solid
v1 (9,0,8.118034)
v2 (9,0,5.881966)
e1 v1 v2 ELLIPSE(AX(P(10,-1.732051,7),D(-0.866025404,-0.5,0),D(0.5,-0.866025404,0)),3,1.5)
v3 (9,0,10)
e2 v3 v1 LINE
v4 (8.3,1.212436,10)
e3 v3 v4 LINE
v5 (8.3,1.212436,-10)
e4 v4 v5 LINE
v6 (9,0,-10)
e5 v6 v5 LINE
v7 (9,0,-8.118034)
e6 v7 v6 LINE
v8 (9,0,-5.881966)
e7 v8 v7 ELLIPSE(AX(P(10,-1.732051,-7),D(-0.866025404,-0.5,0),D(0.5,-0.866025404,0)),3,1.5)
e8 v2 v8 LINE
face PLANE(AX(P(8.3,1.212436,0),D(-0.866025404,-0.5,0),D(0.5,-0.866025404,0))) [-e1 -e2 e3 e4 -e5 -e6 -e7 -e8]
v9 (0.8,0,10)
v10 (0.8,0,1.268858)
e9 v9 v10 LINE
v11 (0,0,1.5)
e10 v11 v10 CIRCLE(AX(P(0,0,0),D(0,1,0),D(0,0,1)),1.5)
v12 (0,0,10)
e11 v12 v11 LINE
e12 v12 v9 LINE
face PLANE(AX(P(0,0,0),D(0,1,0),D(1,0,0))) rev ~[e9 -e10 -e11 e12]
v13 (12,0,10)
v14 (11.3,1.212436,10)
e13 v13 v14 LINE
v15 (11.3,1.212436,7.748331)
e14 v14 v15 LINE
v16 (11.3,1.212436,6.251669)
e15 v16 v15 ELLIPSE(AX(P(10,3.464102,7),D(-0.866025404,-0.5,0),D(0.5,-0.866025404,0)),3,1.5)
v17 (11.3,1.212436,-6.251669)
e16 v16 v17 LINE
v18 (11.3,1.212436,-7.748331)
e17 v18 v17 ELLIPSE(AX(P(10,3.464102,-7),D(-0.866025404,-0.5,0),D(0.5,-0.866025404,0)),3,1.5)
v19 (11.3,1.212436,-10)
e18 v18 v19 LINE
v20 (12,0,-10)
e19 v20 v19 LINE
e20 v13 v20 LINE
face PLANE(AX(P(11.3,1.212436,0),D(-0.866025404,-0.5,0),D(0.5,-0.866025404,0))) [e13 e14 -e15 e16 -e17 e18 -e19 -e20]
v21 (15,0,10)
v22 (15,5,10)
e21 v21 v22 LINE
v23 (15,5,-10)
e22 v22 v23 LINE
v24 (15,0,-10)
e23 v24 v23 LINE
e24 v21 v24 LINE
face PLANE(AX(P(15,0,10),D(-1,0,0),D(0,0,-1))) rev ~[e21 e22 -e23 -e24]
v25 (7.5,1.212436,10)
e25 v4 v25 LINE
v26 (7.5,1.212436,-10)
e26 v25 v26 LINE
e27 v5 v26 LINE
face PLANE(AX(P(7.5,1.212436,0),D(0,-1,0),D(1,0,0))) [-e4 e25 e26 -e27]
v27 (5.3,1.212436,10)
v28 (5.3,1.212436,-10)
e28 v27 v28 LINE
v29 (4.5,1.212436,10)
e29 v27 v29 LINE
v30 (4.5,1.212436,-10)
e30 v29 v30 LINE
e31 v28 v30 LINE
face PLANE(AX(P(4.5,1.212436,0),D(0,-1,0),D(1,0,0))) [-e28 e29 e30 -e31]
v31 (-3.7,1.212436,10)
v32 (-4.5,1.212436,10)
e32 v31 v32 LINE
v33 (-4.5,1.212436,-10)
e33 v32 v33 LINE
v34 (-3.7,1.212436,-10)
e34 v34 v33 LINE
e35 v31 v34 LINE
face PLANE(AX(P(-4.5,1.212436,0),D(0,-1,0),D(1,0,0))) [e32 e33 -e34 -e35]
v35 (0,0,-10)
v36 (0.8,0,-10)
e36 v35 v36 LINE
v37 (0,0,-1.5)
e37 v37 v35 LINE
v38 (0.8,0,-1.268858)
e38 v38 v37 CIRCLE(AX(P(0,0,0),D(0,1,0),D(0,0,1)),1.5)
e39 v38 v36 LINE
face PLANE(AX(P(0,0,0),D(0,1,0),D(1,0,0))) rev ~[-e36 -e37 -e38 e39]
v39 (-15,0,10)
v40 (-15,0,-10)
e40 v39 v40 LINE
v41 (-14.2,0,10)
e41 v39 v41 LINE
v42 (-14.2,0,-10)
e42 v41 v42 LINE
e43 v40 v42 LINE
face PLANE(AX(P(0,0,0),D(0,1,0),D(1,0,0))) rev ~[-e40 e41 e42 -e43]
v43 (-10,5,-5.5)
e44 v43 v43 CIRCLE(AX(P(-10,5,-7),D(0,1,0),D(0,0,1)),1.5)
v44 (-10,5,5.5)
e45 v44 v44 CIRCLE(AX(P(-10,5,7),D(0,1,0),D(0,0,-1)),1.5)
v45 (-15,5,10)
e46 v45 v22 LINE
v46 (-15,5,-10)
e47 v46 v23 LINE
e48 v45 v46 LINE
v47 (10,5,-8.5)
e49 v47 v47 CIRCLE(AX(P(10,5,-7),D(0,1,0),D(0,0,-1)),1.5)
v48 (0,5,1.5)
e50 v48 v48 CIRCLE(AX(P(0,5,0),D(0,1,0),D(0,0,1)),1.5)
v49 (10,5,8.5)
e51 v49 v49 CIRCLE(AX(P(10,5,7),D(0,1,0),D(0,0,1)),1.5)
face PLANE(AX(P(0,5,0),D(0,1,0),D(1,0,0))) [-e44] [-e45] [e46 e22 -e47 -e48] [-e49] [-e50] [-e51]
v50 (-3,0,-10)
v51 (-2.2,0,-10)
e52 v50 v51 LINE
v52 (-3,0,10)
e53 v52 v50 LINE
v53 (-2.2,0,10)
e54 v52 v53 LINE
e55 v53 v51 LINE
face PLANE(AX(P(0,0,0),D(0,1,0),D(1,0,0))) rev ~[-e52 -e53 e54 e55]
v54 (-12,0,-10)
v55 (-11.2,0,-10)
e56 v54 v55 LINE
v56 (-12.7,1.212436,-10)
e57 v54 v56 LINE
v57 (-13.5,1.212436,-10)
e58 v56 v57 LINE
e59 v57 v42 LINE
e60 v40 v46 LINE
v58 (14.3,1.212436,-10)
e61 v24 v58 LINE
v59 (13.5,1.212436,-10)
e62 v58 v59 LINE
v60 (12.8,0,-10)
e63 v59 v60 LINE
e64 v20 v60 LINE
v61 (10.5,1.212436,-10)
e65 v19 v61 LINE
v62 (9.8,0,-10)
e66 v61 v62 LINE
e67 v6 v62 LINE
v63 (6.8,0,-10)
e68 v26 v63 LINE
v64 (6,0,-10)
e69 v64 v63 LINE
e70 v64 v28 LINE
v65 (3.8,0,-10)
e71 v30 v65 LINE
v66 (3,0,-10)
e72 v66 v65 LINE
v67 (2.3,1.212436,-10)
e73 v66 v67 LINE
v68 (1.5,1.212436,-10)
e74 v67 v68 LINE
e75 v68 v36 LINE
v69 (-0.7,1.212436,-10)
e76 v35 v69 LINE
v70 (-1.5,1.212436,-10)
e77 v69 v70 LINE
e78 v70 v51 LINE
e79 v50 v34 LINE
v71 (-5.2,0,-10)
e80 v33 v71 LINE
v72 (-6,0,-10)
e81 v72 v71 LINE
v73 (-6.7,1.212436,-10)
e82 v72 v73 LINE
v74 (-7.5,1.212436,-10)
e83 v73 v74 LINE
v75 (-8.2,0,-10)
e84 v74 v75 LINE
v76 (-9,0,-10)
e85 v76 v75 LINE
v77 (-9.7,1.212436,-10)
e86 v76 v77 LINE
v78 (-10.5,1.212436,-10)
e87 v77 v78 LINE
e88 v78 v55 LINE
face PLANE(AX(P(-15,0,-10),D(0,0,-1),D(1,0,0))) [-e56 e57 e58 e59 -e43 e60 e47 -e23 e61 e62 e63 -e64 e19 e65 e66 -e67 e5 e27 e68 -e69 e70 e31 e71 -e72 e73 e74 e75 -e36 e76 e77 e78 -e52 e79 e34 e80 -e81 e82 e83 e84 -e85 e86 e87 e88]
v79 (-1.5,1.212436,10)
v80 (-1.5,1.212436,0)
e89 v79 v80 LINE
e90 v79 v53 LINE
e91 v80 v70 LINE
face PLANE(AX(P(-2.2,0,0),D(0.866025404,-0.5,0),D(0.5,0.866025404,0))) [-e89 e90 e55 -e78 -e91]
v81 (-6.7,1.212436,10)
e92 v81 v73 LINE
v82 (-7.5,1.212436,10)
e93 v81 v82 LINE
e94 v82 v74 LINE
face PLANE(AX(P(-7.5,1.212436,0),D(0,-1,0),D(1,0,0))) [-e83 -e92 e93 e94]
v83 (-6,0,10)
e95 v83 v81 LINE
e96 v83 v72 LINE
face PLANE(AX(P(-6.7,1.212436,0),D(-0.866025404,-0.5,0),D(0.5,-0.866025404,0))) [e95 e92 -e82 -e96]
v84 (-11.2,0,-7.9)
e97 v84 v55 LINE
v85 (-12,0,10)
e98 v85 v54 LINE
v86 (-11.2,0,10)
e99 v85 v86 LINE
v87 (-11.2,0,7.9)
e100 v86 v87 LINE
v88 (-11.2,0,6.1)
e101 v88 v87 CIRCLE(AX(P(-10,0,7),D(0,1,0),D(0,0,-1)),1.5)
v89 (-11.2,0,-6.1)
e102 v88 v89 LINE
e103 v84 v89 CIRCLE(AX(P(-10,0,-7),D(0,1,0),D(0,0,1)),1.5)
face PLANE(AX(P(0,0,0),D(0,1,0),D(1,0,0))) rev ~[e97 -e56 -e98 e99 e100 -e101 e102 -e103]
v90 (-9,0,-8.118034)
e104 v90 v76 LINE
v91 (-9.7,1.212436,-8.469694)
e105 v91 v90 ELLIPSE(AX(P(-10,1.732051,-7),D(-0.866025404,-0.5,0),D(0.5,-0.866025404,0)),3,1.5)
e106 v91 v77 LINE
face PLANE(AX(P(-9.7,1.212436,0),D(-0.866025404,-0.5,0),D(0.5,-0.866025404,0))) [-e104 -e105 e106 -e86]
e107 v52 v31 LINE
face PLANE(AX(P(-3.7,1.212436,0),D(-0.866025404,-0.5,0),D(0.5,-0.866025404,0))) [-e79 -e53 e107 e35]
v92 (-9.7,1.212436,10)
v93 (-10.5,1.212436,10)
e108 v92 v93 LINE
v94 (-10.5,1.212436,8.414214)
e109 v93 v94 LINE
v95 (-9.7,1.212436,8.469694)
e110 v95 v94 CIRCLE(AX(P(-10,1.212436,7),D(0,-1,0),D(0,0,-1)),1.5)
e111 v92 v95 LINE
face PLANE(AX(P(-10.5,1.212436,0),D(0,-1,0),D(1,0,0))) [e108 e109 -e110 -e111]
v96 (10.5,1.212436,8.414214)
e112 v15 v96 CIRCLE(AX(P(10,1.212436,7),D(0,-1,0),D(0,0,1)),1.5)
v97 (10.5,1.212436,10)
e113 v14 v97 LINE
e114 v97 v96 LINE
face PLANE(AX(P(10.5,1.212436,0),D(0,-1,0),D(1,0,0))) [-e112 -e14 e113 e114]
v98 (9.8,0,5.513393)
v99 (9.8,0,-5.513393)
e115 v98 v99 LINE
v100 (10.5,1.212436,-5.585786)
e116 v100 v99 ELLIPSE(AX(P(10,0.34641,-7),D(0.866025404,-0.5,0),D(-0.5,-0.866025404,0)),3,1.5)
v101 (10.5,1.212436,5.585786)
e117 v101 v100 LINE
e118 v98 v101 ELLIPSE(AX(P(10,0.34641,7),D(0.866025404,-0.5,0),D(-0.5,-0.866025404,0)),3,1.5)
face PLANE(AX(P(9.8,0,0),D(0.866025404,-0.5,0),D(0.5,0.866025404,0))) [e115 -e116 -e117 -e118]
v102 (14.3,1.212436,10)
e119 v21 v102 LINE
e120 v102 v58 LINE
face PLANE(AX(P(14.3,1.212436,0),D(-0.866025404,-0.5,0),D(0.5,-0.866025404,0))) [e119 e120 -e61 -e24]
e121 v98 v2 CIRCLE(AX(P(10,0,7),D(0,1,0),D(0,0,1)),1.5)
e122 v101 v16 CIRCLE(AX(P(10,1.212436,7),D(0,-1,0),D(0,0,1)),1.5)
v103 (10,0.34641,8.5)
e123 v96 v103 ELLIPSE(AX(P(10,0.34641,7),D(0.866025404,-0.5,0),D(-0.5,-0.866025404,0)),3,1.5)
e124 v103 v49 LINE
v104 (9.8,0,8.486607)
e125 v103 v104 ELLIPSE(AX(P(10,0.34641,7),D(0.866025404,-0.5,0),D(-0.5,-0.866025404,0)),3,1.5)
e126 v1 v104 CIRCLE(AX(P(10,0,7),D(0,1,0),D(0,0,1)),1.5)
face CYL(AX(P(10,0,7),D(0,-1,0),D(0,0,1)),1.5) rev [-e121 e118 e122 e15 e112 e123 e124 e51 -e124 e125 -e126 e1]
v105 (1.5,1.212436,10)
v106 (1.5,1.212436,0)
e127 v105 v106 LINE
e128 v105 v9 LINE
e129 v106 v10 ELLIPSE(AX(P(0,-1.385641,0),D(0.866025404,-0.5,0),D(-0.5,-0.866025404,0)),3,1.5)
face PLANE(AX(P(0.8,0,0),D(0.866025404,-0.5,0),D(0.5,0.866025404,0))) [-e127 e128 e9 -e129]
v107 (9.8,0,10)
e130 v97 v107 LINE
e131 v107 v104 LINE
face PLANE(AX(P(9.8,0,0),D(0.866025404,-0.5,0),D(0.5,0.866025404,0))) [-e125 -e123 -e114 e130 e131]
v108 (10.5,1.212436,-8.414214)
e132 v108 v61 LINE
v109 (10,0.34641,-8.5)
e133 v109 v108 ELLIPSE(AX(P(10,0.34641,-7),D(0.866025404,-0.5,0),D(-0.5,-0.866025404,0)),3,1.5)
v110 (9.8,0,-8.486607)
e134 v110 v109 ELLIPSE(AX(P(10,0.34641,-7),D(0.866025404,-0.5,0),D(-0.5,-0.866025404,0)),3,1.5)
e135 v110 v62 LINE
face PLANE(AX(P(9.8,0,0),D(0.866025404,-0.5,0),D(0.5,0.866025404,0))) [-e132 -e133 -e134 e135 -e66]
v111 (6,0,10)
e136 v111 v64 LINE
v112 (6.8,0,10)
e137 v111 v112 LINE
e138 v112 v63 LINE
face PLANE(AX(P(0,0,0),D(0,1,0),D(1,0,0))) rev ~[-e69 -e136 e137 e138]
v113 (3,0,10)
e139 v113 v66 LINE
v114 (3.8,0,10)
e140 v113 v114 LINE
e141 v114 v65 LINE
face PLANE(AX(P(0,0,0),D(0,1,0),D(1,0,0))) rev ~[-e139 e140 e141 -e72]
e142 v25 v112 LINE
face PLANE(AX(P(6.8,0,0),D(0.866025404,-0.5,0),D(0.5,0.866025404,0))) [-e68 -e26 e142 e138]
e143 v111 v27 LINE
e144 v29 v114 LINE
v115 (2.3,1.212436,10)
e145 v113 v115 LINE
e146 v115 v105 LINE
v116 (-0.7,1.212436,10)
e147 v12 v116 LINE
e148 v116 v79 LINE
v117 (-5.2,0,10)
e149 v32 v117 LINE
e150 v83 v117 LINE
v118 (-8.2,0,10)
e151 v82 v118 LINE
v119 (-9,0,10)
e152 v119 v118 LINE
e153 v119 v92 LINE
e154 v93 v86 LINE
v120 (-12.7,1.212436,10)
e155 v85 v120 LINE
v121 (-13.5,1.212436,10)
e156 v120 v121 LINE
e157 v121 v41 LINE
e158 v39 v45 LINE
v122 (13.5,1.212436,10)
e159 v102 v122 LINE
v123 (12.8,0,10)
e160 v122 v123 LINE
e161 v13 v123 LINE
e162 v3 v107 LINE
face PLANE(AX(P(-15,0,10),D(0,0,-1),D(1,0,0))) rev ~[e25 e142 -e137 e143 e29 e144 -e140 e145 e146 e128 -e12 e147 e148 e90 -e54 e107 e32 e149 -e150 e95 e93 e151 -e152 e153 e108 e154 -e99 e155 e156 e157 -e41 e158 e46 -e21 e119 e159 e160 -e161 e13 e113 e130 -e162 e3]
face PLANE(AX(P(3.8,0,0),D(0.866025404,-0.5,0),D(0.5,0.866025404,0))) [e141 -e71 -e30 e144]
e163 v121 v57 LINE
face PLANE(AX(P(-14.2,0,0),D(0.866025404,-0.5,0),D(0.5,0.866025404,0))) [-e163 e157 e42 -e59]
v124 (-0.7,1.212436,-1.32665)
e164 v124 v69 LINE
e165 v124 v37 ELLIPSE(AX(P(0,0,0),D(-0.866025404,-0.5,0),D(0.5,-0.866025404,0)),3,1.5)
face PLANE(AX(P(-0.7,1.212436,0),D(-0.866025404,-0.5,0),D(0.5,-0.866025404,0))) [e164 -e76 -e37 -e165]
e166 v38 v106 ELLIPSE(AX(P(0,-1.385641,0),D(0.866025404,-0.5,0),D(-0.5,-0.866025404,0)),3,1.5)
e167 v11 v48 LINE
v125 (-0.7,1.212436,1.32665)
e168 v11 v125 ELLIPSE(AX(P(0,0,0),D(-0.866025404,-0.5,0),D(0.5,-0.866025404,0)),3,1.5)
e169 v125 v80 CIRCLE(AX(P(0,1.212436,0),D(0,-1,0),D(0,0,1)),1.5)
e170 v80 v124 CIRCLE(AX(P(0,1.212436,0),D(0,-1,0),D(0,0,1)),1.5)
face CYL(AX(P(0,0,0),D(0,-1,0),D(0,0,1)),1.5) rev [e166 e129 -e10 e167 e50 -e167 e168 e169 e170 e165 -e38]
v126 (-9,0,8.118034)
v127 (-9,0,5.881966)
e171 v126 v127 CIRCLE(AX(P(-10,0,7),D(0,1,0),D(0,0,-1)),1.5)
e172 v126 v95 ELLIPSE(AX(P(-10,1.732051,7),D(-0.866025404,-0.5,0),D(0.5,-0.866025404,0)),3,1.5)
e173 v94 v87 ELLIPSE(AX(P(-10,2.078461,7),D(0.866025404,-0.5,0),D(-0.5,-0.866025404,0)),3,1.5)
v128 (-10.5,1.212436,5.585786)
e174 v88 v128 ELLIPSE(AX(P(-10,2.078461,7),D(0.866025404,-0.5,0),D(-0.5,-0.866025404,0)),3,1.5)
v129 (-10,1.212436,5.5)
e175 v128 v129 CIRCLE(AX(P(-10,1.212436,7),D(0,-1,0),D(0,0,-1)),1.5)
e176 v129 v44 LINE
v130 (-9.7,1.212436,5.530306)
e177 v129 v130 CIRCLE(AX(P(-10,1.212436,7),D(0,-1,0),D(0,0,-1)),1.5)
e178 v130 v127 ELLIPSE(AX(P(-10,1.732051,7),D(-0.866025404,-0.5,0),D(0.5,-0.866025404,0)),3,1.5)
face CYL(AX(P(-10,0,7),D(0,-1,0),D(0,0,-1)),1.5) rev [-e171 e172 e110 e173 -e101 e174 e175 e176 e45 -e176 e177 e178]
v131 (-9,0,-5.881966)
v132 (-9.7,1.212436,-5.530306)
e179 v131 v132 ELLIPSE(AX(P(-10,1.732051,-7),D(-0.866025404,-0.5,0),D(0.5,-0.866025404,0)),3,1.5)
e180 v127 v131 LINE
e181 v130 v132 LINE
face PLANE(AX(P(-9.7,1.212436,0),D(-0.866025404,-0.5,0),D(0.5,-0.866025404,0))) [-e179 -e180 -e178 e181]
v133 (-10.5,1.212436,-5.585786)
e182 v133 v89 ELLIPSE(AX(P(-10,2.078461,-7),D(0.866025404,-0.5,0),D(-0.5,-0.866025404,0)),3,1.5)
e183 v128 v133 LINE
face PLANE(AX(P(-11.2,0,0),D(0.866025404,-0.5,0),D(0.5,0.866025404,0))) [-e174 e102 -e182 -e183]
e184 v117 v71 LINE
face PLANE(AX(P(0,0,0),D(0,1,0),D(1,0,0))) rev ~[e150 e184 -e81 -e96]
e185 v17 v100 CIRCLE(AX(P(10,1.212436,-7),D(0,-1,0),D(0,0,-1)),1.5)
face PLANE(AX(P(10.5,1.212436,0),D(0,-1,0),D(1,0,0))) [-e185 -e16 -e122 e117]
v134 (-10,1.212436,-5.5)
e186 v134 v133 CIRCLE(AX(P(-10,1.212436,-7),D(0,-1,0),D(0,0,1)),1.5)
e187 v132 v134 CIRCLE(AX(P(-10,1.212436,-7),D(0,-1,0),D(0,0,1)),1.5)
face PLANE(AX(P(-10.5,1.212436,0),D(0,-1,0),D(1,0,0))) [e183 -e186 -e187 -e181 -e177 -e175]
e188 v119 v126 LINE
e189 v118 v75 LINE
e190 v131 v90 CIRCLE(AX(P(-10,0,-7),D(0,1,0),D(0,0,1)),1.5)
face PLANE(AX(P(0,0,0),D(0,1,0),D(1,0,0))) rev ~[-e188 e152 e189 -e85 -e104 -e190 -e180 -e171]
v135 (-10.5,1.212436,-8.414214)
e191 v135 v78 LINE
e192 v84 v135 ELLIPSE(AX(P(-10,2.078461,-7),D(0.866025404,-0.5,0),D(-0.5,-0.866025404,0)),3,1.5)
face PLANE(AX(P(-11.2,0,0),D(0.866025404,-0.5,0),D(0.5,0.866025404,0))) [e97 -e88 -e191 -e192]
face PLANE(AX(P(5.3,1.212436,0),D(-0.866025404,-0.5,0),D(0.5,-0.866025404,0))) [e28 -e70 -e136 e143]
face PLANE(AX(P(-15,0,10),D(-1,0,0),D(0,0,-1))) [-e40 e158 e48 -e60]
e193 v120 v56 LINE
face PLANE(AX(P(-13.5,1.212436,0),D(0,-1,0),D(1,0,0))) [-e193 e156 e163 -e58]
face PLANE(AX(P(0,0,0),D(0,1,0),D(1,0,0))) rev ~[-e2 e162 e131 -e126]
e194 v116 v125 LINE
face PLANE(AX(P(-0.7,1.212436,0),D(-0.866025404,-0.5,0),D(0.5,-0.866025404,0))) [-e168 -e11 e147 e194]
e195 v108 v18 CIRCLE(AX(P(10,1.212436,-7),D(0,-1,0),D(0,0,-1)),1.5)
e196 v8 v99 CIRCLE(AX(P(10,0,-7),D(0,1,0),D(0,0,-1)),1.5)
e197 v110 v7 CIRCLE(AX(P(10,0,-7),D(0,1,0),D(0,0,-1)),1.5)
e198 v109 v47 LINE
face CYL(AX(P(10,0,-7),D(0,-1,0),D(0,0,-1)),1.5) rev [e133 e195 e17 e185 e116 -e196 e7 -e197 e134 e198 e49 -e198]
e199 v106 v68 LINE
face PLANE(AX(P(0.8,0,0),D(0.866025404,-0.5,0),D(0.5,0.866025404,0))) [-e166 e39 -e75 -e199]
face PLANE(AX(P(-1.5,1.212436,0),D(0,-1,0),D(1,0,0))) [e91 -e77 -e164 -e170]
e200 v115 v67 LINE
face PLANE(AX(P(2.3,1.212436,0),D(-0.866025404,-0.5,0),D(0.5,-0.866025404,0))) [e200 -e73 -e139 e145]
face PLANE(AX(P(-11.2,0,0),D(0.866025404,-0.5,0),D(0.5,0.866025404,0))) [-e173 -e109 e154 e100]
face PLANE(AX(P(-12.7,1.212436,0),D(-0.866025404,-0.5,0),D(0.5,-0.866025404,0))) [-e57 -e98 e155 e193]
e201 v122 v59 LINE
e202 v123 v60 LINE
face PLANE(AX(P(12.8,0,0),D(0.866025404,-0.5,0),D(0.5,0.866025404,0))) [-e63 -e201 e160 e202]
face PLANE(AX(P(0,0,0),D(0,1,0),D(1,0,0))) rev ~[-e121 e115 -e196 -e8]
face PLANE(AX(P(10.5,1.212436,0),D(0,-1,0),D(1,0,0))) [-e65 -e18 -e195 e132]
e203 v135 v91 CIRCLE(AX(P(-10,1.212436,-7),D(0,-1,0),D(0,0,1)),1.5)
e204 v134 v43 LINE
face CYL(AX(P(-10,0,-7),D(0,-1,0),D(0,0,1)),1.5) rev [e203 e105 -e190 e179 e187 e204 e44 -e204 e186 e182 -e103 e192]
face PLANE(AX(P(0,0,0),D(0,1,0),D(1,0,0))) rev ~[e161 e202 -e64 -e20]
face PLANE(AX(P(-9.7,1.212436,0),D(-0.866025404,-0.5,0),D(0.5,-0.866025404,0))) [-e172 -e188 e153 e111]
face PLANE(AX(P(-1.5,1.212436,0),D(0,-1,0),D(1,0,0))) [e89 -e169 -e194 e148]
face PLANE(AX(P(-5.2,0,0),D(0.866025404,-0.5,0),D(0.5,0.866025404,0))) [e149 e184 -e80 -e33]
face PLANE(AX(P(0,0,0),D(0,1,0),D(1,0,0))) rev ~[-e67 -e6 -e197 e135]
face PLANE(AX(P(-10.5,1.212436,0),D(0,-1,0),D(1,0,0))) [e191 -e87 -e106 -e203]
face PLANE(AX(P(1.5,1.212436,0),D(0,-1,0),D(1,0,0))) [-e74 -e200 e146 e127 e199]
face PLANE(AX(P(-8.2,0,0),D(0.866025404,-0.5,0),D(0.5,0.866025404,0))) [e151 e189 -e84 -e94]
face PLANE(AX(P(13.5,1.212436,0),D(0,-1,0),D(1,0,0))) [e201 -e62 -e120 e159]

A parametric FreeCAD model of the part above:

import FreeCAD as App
import Part
import Sketcher

V = App.Vector
Q = App.Units.Quantity

doc = App.newDocument("Part")
params = doc.addObject("Spreadsheet::Sheet", "Params")
for row, (alias, value) in enumerate([
    ("sketch1_diameter", "3 mm"),
    ("sketch1_width", "30 mm"),
    ("sketch1_height", "20 mm"),
    ("pad1_length", "5 mm"),
    ("sketch2_width", "0.8 mm"),
    ("sketch2_length", "1.4 mm"),
    ("pocket1_length", "39.416574 mm"),
    ("linearpattern_pitch", "3 mm"),
], start=1):
    params.set(f"A{row}", alias)
    params.set(f"B{row}", "=" + value)
    params.setAlias(f"B{row}", alias)

body = doc.addObject("PartDesign::Body", "Body")

# Sketch on XZ plane
sketch1 = body.newObject("Sketcher::SketchObject", "Sketch")
sketch1.AttachmentSupport = (doc.getObject("XZ_Plane"), [""])
sketch1.MapMode = "FlatFace"
sketch1.addGeometry([
    Part.LineSegment(V(-15, -10, 0), V(-15, 10, 0)),  # 0
    Part.LineSegment(V(-15, 10, 0), V(15, 10, 0)),  # 1
    Part.LineSegment(V(15, 10, 0), V(15, -10, 0)),  # 2
    Part.LineSegment(V(15, -10, 0), V(-15, -10, 0)),  # 3
    Part.Circle(V(-10, 7, 0), V(0, 0, 1), 1.5),  # 4
    Part.Circle(V(10, 7, 0), V(0, 0, 1), 1.5),  # 5
    Part.Circle(V(-10, -7, 0), V(0, 0, 1), 1.5),  # 6
    Part.Circle(V(0, 0, 0), V(0, 0, 1), 1.5),  # 7
    Part.Circle(V(10, -7, 0), V(0, 0, 1), 1.5),  # 8
], False)
sketch1.addConstraint([
    Sketcher.Constraint("Coincident", 0, 2, 1, 1),
    Sketcher.Constraint("Coincident", 1, 2, 2, 1),
    Sketcher.Constraint("Coincident", 2, 2, 3, 1),
    Sketcher.Constraint("Coincident", 3, 2, 0, 1),
    Sketcher.Constraint("Vertical", 0),
    Sketcher.Constraint("Horizontal", 1),
    Sketcher.Constraint("Vertical", 2),
    Sketcher.Constraint("Horizontal", 3),
    Sketcher.Constraint("Coincident", 7, 3, -1, 1),
    Sketcher.Constraint("Equal", 4, 5),
    Sketcher.Constraint("Equal", 5, 6),
    Sketcher.Constraint("Equal", 6, 7),
    Sketcher.Constraint("Equal", 7, 8),
    Sketcher.Constraint("Symmetric", 5, 3, 6, 3, -1, 1),
    Sketcher.Constraint("Symmetric", 4, 3, 8, 3, -1, 1),
    Sketcher.Constraint("Symmetric", 0, 2, 2, 2, -1, 1),
    Sketcher.Constraint("Symmetric", 4, 3, 5, 3, -2),
    Sketcher.Constraint("Diameter", 4, 3.0),
    Sketcher.Constraint("DistanceX", 1, 1, 1, 2, 30.0),
    Sketcher.Constraint("DistanceY", 0, 1, 0, 2, 20.0),
    Sketcher.Constraint("DistanceX", 4, 3, -1, 1, 10.0),
    Sketcher.Constraint("DistanceY", -1, 1, 4, 3, 7.0),
])
sketch1.setExpression("Constraints[17]", "Params.sketch1_diameter")
sketch1.setExpression("Constraints[18]", "Params.sketch1_width")
sketch1.setExpression("Constraints[19]", "Params.sketch1_height")
pad1 = body.newObject("PartDesign::Pad", "Pad")
pad1.Profile = sketch1
pad1.setExpression("Length", "Params.pad1_length")
pad1.Reversed = True

# Sketch on XY plane
sketch2 = body.newObject("Sketcher::SketchObject", "Sketch001")
sketch2.AttachmentSupport = (doc.getObject("XY_Plane"), [""])
sketch2.MapMode = "FlatFace"
sketch2.addGeometry([
    Part.LineSegment(V(-14.2, 0, 0), V(-85.827625, 0, 0)),  # 0
    Part.LineSegment(V(-85.827625, 0, 0), V(-155.181388, -123.516257, 0)),  # 1
    Part.LineSegment(V(-155.181388, -123.516257, 0), V(-45.93995, -184.85478, 0)),  # 2
    Part.LineSegment(V(-45.93995, -184.85478, 0), V(23.413813, -61.338523, 0)),  # 3
    Part.LineSegment(V(23.413813, -61.338523, 0), V(-12, 0, 0)),  # 4
    Part.LineSegment(V(-12, 0, 0), V(-12.7, 1.212436, 0)),  # 5
    Part.LineSegment(V(-12.7, 1.212436, 0), V(-13.5, 1.212436, 0)),  # 6
    Part.LineSegment(V(-13.5, 1.212436, 0), V(-14.2, 0, 0)),  # 7
], False)
sketch2.addConstraint([
    Sketcher.Constraint("Coincident", 0, 2, 1, 1),
    Sketcher.Constraint("Coincident", 1, 2, 2, 1),
    Sketcher.Constraint("Coincident", 2, 2, 3, 1),
    Sketcher.Constraint("Coincident", 3, 2, 4, 1),
    Sketcher.Constraint("Coincident", 4, 2, 5, 1),
    Sketcher.Constraint("Coincident", 5, 2, 6, 1),
    Sketcher.Constraint("Coincident", 6, 2, 7, 1),
    Sketcher.Constraint("Coincident", 7, 2, 0, 1),
    Sketcher.Constraint("Horizontal", 0),
    Sketcher.Constraint("Horizontal", 6),
    Sketcher.Constraint("PointOnObject", 0, 2, -1),
    Sketcher.Constraint("PointOnObject", 4, 2, -1),
    Sketcher.Constraint("Perpendicular", 1, 2),
    Sketcher.Constraint("Perpendicular", 2, 3),
    Sketcher.Constraint("Parallel", 4, 5),
    Sketcher.Constraint("Equal", 1, 3),
    Sketcher.Constraint("Equal", 5, 7),
    Sketcher.Constraint("Angle", 4, Q("120 deg")),
    Sketcher.Constraint("DistanceX", 6, 2, 6, 1, 0.8),
    Sketcher.Constraint("DistanceX", 4, 2, -1, 1, 12.0),
    Sketcher.Constraint("Distance", 5, 1.4),
    Sketcher.Constraint("Distance", 2, 125.284102),
    Sketcher.Constraint("DistanceX", 1, 2, 3, 2, 178.5952),
    Sketcher.Constraint("Distance", 1, 141.655251),
])
sketch2.setExpression("Constraints[18]", "Params.sketch2_width")
sketch2.setExpression("Constraints[20]", "Params.sketch2_length")
pocket1 = body.newObject("PartDesign::Pocket", "Pocket")
pocket1.Profile = sketch2
pocket1.setExpression("Length", "Params.pocket1_length")
pocket1.Midplane = True
doc.recompute()

linearpattern = body.newObject("PartDesign::LinearPattern", "LinearPattern")
linearpattern.Originals = [pocket1]
linearpattern.Direction = (doc.getObject("X_Axis"), [""])
linearpattern.Mode = "offset"
linearpattern.setExpression("Offset", "Params.linearpattern_pitch")
linearpattern.Occurrences = 10
body.Tip = linearpattern

doc.recompute()
